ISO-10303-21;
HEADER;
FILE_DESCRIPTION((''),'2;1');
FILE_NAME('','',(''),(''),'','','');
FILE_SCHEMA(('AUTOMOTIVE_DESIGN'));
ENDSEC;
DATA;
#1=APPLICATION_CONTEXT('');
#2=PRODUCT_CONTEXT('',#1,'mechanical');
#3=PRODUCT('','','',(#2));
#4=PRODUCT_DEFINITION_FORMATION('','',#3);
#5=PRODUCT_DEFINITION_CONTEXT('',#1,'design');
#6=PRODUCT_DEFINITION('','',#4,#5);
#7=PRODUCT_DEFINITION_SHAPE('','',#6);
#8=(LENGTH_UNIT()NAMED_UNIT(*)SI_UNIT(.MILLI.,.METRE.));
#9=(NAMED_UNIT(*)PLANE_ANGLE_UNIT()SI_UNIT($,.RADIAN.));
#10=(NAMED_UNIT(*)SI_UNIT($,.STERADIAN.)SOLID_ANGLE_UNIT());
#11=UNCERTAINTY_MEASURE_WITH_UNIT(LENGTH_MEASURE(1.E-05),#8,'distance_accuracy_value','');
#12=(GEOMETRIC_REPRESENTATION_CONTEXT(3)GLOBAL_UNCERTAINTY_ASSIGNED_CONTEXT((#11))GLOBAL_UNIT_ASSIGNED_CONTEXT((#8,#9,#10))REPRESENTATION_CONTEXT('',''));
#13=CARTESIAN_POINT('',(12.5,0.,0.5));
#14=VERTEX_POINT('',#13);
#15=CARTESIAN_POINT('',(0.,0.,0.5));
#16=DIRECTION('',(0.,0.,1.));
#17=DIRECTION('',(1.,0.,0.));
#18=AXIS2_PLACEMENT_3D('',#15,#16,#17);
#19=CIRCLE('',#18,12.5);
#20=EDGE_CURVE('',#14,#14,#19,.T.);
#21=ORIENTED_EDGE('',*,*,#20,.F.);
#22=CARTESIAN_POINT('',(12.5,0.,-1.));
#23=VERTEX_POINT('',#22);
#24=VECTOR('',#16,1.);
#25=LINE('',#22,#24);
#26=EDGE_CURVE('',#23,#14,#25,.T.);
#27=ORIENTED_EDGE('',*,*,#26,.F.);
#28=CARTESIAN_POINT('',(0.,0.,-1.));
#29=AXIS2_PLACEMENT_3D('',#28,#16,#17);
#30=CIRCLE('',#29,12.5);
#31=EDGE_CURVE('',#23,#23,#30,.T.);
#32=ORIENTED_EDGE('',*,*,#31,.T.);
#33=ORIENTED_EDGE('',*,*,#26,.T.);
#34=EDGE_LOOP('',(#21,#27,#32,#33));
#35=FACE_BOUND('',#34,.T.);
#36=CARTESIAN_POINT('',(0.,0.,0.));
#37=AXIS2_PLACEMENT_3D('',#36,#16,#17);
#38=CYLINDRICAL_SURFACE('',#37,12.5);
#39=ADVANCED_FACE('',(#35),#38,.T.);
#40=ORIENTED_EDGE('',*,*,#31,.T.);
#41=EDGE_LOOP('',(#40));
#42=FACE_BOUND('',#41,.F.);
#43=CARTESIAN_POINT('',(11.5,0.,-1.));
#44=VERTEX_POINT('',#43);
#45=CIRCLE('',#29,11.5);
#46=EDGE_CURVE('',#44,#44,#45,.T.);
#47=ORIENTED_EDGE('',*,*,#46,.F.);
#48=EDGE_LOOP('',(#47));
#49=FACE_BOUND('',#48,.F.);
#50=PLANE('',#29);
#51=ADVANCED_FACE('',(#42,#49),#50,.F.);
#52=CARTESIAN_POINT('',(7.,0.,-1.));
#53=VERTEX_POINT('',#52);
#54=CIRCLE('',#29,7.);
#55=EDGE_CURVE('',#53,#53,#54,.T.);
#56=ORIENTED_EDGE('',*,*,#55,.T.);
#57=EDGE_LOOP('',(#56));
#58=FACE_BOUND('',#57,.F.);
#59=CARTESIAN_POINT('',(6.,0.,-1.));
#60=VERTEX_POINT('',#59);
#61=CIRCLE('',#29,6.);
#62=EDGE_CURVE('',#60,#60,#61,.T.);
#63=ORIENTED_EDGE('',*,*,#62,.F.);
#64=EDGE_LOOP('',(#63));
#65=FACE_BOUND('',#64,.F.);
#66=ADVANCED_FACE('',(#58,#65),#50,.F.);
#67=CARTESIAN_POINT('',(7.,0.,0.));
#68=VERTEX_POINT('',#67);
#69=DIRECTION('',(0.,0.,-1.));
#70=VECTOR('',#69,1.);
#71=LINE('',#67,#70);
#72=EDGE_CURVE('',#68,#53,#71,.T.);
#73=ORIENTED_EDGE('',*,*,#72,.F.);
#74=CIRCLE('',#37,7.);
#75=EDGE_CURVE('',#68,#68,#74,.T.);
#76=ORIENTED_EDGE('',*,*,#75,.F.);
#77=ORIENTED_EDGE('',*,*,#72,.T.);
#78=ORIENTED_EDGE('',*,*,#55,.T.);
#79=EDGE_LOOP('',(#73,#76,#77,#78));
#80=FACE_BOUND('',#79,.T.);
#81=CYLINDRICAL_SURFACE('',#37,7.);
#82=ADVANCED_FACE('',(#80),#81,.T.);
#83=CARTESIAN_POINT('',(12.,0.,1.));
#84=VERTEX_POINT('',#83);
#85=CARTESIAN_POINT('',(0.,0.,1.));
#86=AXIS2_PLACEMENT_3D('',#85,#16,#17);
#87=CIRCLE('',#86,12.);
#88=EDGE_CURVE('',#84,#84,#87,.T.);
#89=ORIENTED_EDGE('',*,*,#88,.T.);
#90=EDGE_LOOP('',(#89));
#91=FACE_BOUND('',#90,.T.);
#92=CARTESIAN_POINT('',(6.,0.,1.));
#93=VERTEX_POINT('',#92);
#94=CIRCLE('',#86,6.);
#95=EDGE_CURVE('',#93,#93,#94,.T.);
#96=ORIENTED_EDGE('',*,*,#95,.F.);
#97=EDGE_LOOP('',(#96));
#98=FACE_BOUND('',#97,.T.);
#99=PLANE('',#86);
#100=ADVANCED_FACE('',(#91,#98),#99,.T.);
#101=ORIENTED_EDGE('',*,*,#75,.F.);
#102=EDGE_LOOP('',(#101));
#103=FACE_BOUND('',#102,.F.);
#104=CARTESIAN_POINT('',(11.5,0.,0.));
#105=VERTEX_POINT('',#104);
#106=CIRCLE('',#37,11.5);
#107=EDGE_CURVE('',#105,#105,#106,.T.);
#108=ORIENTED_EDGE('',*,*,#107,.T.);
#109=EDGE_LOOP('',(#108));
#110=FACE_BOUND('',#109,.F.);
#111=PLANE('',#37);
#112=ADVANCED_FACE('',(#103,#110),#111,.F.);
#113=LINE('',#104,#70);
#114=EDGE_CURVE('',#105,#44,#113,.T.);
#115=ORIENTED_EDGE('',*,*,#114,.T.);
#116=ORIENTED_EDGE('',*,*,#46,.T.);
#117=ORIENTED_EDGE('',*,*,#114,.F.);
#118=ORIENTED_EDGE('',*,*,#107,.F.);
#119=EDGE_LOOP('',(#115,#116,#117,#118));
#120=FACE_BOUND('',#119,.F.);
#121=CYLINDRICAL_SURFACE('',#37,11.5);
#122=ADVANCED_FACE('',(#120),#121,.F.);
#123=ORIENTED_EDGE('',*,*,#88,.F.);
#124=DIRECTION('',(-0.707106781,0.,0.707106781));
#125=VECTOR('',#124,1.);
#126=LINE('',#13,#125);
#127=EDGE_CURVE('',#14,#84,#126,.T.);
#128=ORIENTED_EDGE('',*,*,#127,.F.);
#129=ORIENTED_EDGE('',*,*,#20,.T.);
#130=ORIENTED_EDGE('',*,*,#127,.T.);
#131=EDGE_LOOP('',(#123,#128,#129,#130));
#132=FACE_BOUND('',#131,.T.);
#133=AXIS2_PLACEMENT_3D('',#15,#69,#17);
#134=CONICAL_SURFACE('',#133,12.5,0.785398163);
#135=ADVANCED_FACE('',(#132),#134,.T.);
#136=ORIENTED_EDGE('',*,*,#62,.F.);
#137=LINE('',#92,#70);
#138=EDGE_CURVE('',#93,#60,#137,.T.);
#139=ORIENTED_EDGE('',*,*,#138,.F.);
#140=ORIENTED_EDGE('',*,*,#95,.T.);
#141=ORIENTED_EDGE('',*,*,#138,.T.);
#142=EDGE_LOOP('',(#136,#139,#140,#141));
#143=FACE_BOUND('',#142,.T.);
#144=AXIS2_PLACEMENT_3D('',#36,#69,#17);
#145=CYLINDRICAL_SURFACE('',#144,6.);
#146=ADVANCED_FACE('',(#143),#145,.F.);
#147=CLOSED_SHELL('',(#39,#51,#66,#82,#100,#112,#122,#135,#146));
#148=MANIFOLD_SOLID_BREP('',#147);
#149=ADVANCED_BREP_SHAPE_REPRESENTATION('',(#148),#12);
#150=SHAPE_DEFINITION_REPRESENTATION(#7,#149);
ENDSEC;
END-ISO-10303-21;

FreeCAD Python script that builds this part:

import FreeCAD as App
import Part
import Sketcher

V = App.Vector
Q = App.Units.Quantity


def edges_at(feature, points):
    """Names of the edges that pass closest to the given points."""
    edges = feature.Shape.Edges
    near = lambda p: min(range(len(edges)), key=lambda i: edges[i].distToShape(Part.Vertex(*p))[0])
    return sorted({f"Edge{near(p) + 1}" for p in points})

doc = App.newDocument("Part")
body = doc.addObject("PartDesign::Body", "Body")

sketch1 = doc.addObject("Sketcher::SketchObject", "Sketch")
body.addObject(sketch1)
sketch1.AttachmentSupport = (doc.XY_Plane, [""])
sketch1.MapMode = "FlatFace"
sketch1.addGeometry(Part.Circle(V(0, 0, 0), V(0, 0, 1), 12.5), False)
sketch1.addGeometry(Part.Circle(V(0, 0, 0), V(0, 0, 1), 6), False)
sketch1.addConstraint(Sketcher.Constraint("Coincident", 0, 3, -1, 1))
sketch1.addConstraint(Sketcher.Constraint("Coincident", 1, 3, -1, 1))
sketch1.addConstraint(Sketcher.Constraint("Diameter", 0, Q("25 mm")))
sketch1.addConstraint(Sketcher.Constraint("Diameter", 1, Q("12 mm")))
pad1 = doc.addObject("PartDesign::Pad", "Pad")
body.addObject(pad1)
pad1.Profile = sketch1
pad1.Length = 1

sketch2 = doc.addObject("Sketcher::SketchObject", "Sketch001")
body.addObject(sketch2)
sketch2.AttachmentSupport = (doc.XY_Plane, [""])
sketch2.MapMode = "FlatFace"
sketch2.addGeometry(Part.Circle(V(0, 0, 0), V(0, 0, 1), 12.5), False)
sketch2.addGeometry(Part.Circle(V(0, 0, 0), V(0, 0, 1), 11.5), False)
sketch2.addGeometry(Part.Circle(V(0, 0, 0), V(0, 0, 1), 7), False)
sketch2.addGeometry(Part.Circle(V(0, 0, 0), V(0, 0, 1), 6), False)
sketch2.addConstraint(Sketcher.Constraint("Coincident", 0, 3, -1, 1))
sketch2.addConstraint(Sketcher.Constraint("Coincident", 1, 3, -1, 1))
sketch2.addConstraint(Sketcher.Constraint("Coincident", 2, 3, -1, 1))
sketch2.addConstraint(Sketcher.Constraint("Coincident", 3, 3, -1, 1))
sketch2.addConstraint(Sketcher.Constraint("Diameter", 0, Q("25 mm")))
sketch2.addConstraint(Sketcher.Constraint("Diameter", 1, Q("23 mm")))
sketch2.addConstraint(Sketcher.Constraint("Diameter", 2, Q("14 mm")))
sketch2.addConstraint(Sketcher.Constraint("Diameter", 3, Q("12 mm")))
pad2 = doc.addObject("PartDesign::Pad", "Pad001")
body.addObject(pad2)
pad2.Profile = sketch2
pad2.Length = 1
pad2.Reversed = True
doc.recompute()

chamfer = doc.addObject("PartDesign::Chamfer", "Chamfer")
body.addObject(chamfer)
chamfer.Base = (pad2, edges_at(pad2, [(-12.5, 0, 1)]))
chamfer.Size = 0.5

doc.recompute()
